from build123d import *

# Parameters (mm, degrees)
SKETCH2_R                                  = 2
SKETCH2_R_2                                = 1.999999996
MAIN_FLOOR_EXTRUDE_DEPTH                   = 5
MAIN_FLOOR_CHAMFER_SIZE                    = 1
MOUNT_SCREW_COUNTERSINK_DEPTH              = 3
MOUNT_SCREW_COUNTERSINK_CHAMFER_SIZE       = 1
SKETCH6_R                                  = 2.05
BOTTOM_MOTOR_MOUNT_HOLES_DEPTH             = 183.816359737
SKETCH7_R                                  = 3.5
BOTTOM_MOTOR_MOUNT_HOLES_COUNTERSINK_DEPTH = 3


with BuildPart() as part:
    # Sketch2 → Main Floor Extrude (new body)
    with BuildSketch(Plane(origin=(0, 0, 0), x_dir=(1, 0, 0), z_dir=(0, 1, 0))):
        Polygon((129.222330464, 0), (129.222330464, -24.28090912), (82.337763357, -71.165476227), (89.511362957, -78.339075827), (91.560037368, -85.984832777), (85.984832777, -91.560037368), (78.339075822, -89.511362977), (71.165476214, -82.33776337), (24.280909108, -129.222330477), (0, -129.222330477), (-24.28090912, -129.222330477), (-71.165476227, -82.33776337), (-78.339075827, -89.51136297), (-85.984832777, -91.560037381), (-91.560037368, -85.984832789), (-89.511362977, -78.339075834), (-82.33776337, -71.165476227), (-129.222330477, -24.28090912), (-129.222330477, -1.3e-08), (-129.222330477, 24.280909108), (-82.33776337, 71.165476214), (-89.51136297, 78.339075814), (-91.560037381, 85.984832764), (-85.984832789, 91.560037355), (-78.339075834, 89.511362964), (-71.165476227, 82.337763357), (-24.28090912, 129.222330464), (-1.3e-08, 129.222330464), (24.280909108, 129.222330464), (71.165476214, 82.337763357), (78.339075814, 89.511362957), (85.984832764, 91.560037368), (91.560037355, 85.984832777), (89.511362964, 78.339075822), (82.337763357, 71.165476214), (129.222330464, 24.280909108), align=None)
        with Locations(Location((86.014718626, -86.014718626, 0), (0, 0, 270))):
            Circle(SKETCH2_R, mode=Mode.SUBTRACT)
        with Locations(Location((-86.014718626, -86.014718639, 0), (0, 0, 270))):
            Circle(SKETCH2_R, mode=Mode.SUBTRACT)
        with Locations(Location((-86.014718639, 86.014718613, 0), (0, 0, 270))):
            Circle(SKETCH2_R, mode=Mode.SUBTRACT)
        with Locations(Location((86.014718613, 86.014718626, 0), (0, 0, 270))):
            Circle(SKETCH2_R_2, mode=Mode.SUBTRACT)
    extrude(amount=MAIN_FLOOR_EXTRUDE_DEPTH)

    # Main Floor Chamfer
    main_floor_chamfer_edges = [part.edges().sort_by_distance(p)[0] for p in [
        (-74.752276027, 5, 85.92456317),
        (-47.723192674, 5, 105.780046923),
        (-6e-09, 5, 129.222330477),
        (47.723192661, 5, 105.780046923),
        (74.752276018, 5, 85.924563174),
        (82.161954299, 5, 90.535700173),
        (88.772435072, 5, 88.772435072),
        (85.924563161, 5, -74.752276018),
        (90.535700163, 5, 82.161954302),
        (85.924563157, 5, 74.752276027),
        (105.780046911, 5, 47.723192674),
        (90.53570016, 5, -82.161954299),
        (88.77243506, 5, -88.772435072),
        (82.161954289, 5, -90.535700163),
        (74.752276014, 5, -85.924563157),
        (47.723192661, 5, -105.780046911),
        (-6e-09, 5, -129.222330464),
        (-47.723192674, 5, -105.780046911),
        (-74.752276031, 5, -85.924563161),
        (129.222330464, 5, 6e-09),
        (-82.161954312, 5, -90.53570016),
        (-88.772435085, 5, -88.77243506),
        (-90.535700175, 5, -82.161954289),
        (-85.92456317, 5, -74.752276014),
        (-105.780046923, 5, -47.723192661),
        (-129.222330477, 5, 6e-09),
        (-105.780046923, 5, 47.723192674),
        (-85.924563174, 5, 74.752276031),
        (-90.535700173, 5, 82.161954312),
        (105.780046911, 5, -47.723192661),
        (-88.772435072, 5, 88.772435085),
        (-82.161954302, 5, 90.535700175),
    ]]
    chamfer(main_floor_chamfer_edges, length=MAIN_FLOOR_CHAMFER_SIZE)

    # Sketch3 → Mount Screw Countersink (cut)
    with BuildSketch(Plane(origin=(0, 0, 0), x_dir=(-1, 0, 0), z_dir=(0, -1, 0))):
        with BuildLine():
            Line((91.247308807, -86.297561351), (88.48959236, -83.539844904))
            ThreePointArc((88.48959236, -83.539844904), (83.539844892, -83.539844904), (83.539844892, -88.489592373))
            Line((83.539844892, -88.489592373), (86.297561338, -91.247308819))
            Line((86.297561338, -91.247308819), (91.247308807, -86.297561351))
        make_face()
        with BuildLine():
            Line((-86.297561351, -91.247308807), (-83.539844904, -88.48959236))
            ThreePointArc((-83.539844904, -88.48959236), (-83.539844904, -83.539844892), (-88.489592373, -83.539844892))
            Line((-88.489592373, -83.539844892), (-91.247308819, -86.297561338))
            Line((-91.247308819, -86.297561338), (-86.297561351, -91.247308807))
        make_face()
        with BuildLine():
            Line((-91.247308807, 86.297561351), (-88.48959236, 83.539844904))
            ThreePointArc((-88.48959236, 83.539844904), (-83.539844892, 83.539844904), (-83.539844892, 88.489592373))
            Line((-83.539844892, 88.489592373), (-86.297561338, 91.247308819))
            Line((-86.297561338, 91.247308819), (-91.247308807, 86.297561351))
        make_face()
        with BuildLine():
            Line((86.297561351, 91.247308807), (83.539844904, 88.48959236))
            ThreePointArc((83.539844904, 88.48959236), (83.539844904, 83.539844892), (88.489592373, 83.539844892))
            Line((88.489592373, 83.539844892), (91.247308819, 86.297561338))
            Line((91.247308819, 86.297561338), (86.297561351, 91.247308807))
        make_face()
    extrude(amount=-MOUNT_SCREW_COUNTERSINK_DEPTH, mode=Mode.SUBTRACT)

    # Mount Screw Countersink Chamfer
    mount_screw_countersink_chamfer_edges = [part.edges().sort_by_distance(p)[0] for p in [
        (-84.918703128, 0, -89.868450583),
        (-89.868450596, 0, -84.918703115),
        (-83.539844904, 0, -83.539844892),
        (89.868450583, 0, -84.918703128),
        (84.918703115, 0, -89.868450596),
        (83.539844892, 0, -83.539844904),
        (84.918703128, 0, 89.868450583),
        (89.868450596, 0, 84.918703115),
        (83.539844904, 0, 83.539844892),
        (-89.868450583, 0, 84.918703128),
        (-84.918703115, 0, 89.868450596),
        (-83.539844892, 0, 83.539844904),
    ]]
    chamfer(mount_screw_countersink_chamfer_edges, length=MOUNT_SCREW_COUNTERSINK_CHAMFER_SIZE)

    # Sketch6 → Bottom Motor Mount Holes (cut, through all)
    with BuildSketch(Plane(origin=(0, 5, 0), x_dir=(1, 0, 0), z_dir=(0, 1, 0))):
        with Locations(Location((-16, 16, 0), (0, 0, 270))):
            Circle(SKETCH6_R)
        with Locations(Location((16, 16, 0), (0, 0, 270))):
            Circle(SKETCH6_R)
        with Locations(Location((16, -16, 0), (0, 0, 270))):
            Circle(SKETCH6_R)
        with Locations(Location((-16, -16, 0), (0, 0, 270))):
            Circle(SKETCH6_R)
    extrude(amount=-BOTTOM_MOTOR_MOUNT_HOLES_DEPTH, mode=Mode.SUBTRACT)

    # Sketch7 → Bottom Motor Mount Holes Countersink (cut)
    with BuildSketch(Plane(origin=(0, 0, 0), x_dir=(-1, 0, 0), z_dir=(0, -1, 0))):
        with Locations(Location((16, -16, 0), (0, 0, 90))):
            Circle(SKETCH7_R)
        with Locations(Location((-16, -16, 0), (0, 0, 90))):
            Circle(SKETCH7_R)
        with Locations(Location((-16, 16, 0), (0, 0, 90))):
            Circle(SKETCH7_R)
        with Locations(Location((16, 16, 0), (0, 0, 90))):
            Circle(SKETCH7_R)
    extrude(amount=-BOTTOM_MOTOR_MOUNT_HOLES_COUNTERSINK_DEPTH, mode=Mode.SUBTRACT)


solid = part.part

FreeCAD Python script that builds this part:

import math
import FreeCAD as App
import Part
import Sketcher
Q = App.Units.Quantity


def edges_at(feature, points):
    """Names of the edges that pass closest to the given points."""
    edges = feature.Shape.Edges
    near = lambda p: min(range(len(edges)), key=lambda i: edges[i].distToShape(Part.Vertex(*p))[0])
    return sorted({f"Edge{near(p) + 1}" for p in points})


def add_polygon(sketch, points):
    """Adds a closed chain of lines whose ends are joined by coincident constraints."""
    first, n = sketch.GeometryCount, len(points)
    for a, b in zip(points, points[1:] + points[:1]):
        sketch.addGeometry(Part.LineSegment(App.Vector(*a, 0), App.Vector(*b, 0)), False)
    for i in range(n):
        sketch.addConstraint(Sketcher.Constraint("Coincident", first + i, 2, first + (i + 1) % n, 1))

doc = App.newDocument("Part")
body = doc.addObject("PartDesign::Body", "Body")

sketch1 = body.newObject("Sketcher::SketchObject", "Sketch")
sketch1.AttachmentSupport = (doc.getObject("XZ_Plane"), [""])
sketch1.MapMode = "FlatFace"
add_polygon(sketch1, [(129.2, 24.3), (129.2, -24.3), (82.3, -71.2), (89.5, -78.3), (91.6, -86), (86, -91.6), (78.3, -89.5), (71.2, -82.3), (24.3, -129.2), (-24.3, -129.2), (-71.2, -82.3), (-78.3, -89.5), (-86, -91.6), (-91.6, -86), (-89.5, -78.3), (-82.3, -71.2), (-129.2, -24.3), (-129.2, 24.3), (-82.3, 71.2), (-89.5, 78.3), (-91.6, 86), (-86, 91.6), (-78.3, 89.5), (-71.2, 82.3), (-24.3, 129.2), (24.3, 129.2), (71.2, 82.3), (78.3, 89.5), (86, 91.6), (91.6, 86), (89.5, 78.3), (82.3, 71.2)])
sketch1.addGeometry(Part.Circle(App.Vector(86, 86, 0), App.Vector(0, 0, 1), 2), False)
sketch1.addGeometry(Part.Circle(App.Vector(-86, 86, 0), App.Vector(0, 0, 1), 2), False)
sketch1.addGeometry(Part.Circle(App.Vector(86, -86, 0), App.Vector(0, 0, 1), 2), False)
sketch1.addGeometry(Part.Circle(App.Vector(-86, -86, 0), App.Vector(0, 0, 1), 2), False)
sketch1.addConstraint([
    Sketcher.Constraint("Vertical", 0),
    Sketcher.Constraint("Horizontal", 8),
    Sketcher.Constraint("Vertical", 16),
    Sketcher.Constraint("Horizontal", 24),
    Sketcher.Constraint("Equal", 32, 33),
    Sketcher.Constraint("Equal", 33, 34),
    Sketcher.Constraint("Equal", 34, 35),
    Sketcher.Constraint("Symmetric", 33, 3, 34, 3, -1, 1),
    Sketcher.Constraint("Symmetric", 32, 3, 35, 3, -1, 1),
    Sketcher.Constraint("Symmetric", 0, 2, 16, 2, -1, 1),
    Sketcher.Constraint("Symmetric", 1, 2, 17, 2, -1, 1),
    Sketcher.Constraint("Symmetric", 2, 2, 18, 2, -1, 1),
    Sketcher.Constraint("Symmetric", 3, 2, 19, 2, -1, 1),
    Sketcher.Constraint("Symmetric", 4, 2, 20, 2, -1, 1),
    Sketcher.Constraint("Symmetric", 5, 2, 21, 2, -1, 1),
    Sketcher.Constraint("Symmetric", 6, 2, 22, 2, -1, 1),
    Sketcher.Constraint("Symmetric", 7, 2, 23, 2, -1, 1),
    Sketcher.Constraint("Symmetric", 9, 2, 25, 2, -1, 1),
    Sketcher.Constraint("Symmetric", 10, 2, 26, 2, -1, 1),
    Sketcher.Constraint("Symmetric", 11, 2, 27, 2, -1, 1),
    Sketcher.Constraint("Symmetric", 12, 2, 28, 2, -1, 1),
    Sketcher.Constraint("Symmetric", 13, 2, 29, 2, -1, 1),
    Sketcher.Constraint("Symmetric", 14, 2, 30, 2, -1, 1),
    Sketcher.Constraint("Symmetric", 32, 3, 33, 3, -2),
    Sketcher.Constraint("Symmetric", 6, 2, 9, 2, -2),
    Sketcher.Constraint("Symmetric", 5, 2, 10, 2, -2),
    Sketcher.Constraint("Symmetric", 4, 2, 11, 2, -2),
    Sketcher.Constraint("Symmetric", 3, 2, 12, 2, -2),
    Sketcher.Constraint("Symmetric", 2, 2, 13, 2, -2),
    Sketcher.Constraint("Symmetric", 1, 2, 14, 2, -2),
    Sketcher.Constraint("Perpendicular", 1, 2),
    Sketcher.Constraint("Perpendicular", 2, 4),
    Sketcher.Constraint("Perpendicular", 4, 6),
    Sketcher.Constraint("Perpendicular", 6, 7),
    Sketcher.Constraint("Perpendicular", 7, 9),
    Sketcher.Constraint("Perpendicular", 9, 10),
    Sketcher.Constraint("Perpendicular", 3, 11),
    Sketcher.Constraint("Perpendicular", 14, 15),
    Sketcher.Constraint("Perpendicular", 23, 25),
    Sketcher.Constraint("Perpendicular", 30, 31),
    Sketcher.Constraint("Equal", 24, 0),
    Sketcher.Constraint("Equal", 3, 5),
    Sketcher.Constraint("Equal", 2, 6),
    Sketcher.Constraint("Equal", 1, 7),
    Sketcher.Constraint("Diameter", 32, 4.0),
    Sketcher.Constraint("Angle", 3, Q("-75 deg")),
    Sketcher.Constraint("Distance", 2, 10.145002),
    Sketcher.Constraint("DistanceX", 8, 2, 8, 1, 48.561818),
    Sketcher.Constraint("Distance", 1, 66.304791),
    Sketcher.Constraint("Distance", 3, 7.91547),
    Sketcher.Constraint("Distance", 4, 7.88453),
    Sketcher.Constraint("DistanceX", -1, 1, 32, 3, 86.014719),
    Sketcher.Constraint("DistanceY", -1, 1, 32, 3, 86.014719),
])
pad1 = body.newObject("PartDesign::Pad", "Pad")
pad1.Profile = sketch1
pad1.Length = 5
pad1.Reversed = True
doc.recompute()

chamfer = body.newObject("PartDesign::Chamfer", "Chamfer")
chamfer.Base = (pad1, edges_at(pad1, [
    (-74.752, 5, 85.925),
    (-47.723, 5, 105.78),
    (0, 5, 129.222),
    (47.723, 5, 105.78),
    (74.752, 5, 85.925),
    (82.162, 5, 90.536),
    (88.772, 5, 88.772),
    (85.925, 5, -74.752),
    (90.536, 5, 82.162),
    (85.925, 5, 74.752),
    (105.78, 5, 47.723),
    (90.536, 5, -82.162),
    (88.772, 5, -88.772),
    (82.162, 5, -90.536),
    (74.752, 5, -85.925),
    (47.723, 5, -105.78),
    (0, 5, -129.222),
    (-47.723, 5, -105.78),
    (-74.752, 5, -85.925),
    (129.222, 5, 0),
    (-82.162, 5, -90.536),
    (-88.772, 5, -88.772),
    (-90.536, 5, -82.162),
    (-85.925, 5, -74.752),
    (-105.78, 5, -47.723),
    (-129.222, 5, 0),
    (-105.78, 5, 47.723),
    (-85.925, 5, 74.752),
    (-90.536, 5, 82.162),
    (105.78, 5, -47.723),
    (-88.772, 5, 88.772),
    (-82.162, 5, 90.536),
]))
chamfer.Size = 1

sketch2 = body.newObject("Sketcher::SketchObject", "Sketch001")
sketch2.AttachmentSupport = (doc.getObject("XZ_Plane"), [""])
sketch2.MapMode = "FlatFace"
sketch2.addGeometry([
    Part.LineSegment(App.Vector(-91.2, 86.3, 0), App.Vector(-88.5, 83.5, 0)),
    Part.ArcOfCircle(Part.Circle(App.Vector(-86, 86, 0), App.Vector(0, 0, 1), 3.5), math.radians(-135), math.radians(45)),
    Part.LineSegment(App.Vector(-83.5, 88.5, 0), App.Vector(-86.3, 91.2, 0)),
    Part.LineSegment(App.Vector(-86.3, 91.2, 0), App.Vector(-91.2, 86.3, 0)),
    Part.LineSegment(App.Vector(86.3, 91.2, 0), App.Vector(83.5, 88.5, 0)),
    Part.ArcOfCircle(Part.Circle(App.Vector(86, 86, 0), App.Vector(0, 0, 1), 3.5), math.radians(135), math.radians(315)),
    Part.LineSegment(App.Vector(88.5, 83.5, 0), App.Vector(91.2, 86.3, 0)),
    Part.LineSegment(App.Vector(91.2, 86.3, 0), App.Vector(86.3, 91.2, 0)),
    Part.LineSegment(App.Vector(91.2, -86.3, 0), App.Vector(88.5, -83.5, 0)),
    Part.ArcOfCircle(Part.Circle(App.Vector(86, -86, 0), App.Vector(0, 0, 1), 3.5), math.radians(45), math.radians(225)),
    Part.LineSegment(App.Vector(83.5, -88.5, 0), App.Vector(86.3, -91.2, 0)),
    Part.LineSegment(App.Vector(86.3, -91.2, 0), App.Vector(91.2, -86.3, 0)),
    Part.LineSegment(App.Vector(-86.3, -91.2, 0), App.Vector(-83.5, -88.5, 0)),
    Part.ArcOfCircle(Part.Circle(App.Vector(-86, -86, 0), App.Vector(0, 0, 1), 3.5), math.radians(-45), math.radians(135)),
    Part.LineSegment(App.Vector(-88.5, -83.5, 0), App.Vector(-91.2, -86.3, 0)),
    Part.LineSegment(App.Vector(-91.2, -86.3, 0), App.Vector(-86.3, -91.2, 0)),
], False)
sketch2.addConstraint([
    Sketcher.Constraint("Tangent", 0, 2, 1, 1),
    Sketcher.Constraint("Tangent", 1, 2, 2, 1),
    Sketcher.Constraint("Coincident", 2, 2, 3, 1),
    Sketcher.Constraint("Coincident", 3, 2, 0, 1),
    Sketcher.Constraint("Tangent", 4, 2, 5, 1),
    Sketcher.Constraint("Tangent", 5, 2, 6, 1),
    Sketcher.Constraint("Coincident", 6, 2, 7, 1),
    Sketcher.Constraint("Coincident", 7, 2, 4, 1),
    Sketcher.Constraint("Tangent", 8, 2, 9, 1),
    Sketcher.Constraint("Tangent", 9, 2, 10, 1),
    Sketcher.Constraint("Coincident", 10, 2, 11, 1),
    Sketcher.Constraint("Coincident", 11, 2, 8, 1),
    Sketcher.Constraint("Tangent", 12, 2, 13, 1),
    Sketcher.Constraint("Tangent", 13, 2, 14, 1),
    Sketcher.Constraint("Coincident", 14, 2, 15, 1),
    Sketcher.Constraint("Coincident", 15, 2, 12, 1),
    Sketcher.Constraint("Equal", 1, 5),
    Sketcher.Constraint("Equal", 5, 9),
    Sketcher.Constraint("Equal", 9, 13),
    Sketcher.Constraint("Symmetric", 1, 3, 9, 3, -1, 1),
    Sketcher.Constraint("Symmetric", 5, 3, 13, 3, -1, 1),
    Sketcher.Constraint("Symmetric", 2, 2, 10, 2, -1, 1),
    Sketcher.Constraint("Symmetric", 3, 2, 11, 2, -1, 1),
    Sketcher.Constraint("Symmetric", 6, 2, 14, 2, -1, 1),
    Sketcher.Constraint("Symmetric", 7, 2, 15, 2, -1, 1),
    Sketcher.Constraint("Symmetric", 1, 3, 5, 3, -2),
    Sketcher.Constraint("Symmetric", 3, 2, 6, 2, -2),
    Sketcher.Constraint("Symmetric", 2, 2, 7, 2, -2),
    Sketcher.Constraint("Parallel", 0, 2),
    Sketcher.Constraint("Perpendicular", 2, 3),
    Sketcher.Constraint("Parallel", 3, 4),
    Sketcher.Constraint("Radius", 1, 3.5),
    Sketcher.Constraint("Distance", 0, 3.9),
    Sketcher.Constraint("DistanceX", 1, 3, -1, 1, 86.014719),
    Sketcher.Constraint("DistanceY", -1, 1, 1, 3, 86.014719),
])
pocket1 = body.newObject("PartDesign::Pocket", "Pocket")
pocket1.Profile = sketch2
pocket1.Length = 3
doc.recompute()

chamfer2 = body.newObject("PartDesign::Chamfer", "Chamfer001")
chamfer2.Base = (pocket1, edges_at(pocket1, [
    (-84.919, 0, -89.868),
    (-89.868, 0, -84.919),
    (-83.54, 0, -83.54),
    (89.868, 0, -84.919),
    (84.919, 0, -89.868),
    (83.54, 0, -83.54),
    (84.919, 0, 89.868),
    (89.868, 0, 84.919),
    (83.54, 0, 83.54),
    (-89.868, 0, 84.919),
    (-84.919, 0, 89.868),
    (-83.54, 0, 83.54),
]))
chamfer2.Size = 1

sketch3 = body.newObject("Sketcher::SketchObject", "Sketch002")
sketch3.AttachmentSupport = (doc.getObject("XZ_Plane"), [""])
sketch3.MapMode = "FlatFace"
sketch3.AttachmentOffset = App.Placement(App.Vector(0, 0, -5), App.Rotation())
sketch3.addGeometry([
    Part.Circle(App.Vector(-16, -16, 0), App.Vector(0, 0, 1), 2),
    Part.Circle(App.Vector(16, -16, 0), App.Vector(0, 0, 1), 2),
    Part.Circle(App.Vector(16, 16, 0), App.Vector(0, 0, 1), 2),
    Part.Circle(App.Vector(-16, 16, 0), App.Vector(0, 0, 1), 2),
], False)
sketch3.addConstraint([
    Sketcher.Constraint("Equal", 0, 1),
    Sketcher.Constraint("Equal", 1, 2),
    Sketcher.Constraint("Equal", 2, 3),
    Sketcher.Constraint("Symmetric", 0, 3, 2, 3, -1, 1),
    Sketcher.Constraint("Symmetric", 1, 3, 3, 3, -1, 1),
    Sketcher.Constraint("Symmetric", 0, 3, 1, 3, -2),
    Sketcher.Constraint("Diameter", 0, 4.1),
    Sketcher.Constraint("DistanceX", 0, 3, -1, 1, 16.0),
    Sketcher.Constraint("DistanceY", 0, 3, -1, 1, 16.0),
])
pocket2 = body.newObject("PartDesign::Pocket", "Pocket001")
pocket2.Profile = sketch3
pocket2.Type = "ThroughAll"
pocket2.Reversed = True

sketch4 = body.newObject("Sketcher::SketchObject", "Sketch003")
sketch4.AttachmentSupport = (doc.getObject("XZ_Plane"), [""])
sketch4.MapMode = "FlatFace"
sketch4.addGeometry([
    Part.Circle(App.Vector(-16, 16, 0), App.Vector(0, 0, 1), 3.5),
    Part.Circle(App.Vector(16, 16, 0), App.Vector(0, 0, 1), 3.5),
    Part.Circle(App.Vector(16, -16, 0), App.Vector(0, 0, 1), 3.5),
    Part.Circle(App.Vector(-16, -16, 0), App.Vector(0, 0, 1), 3.5),
], False)
sketch4.addConstraint([
    Sketcher.Constraint("Equal", 0, 1),
    Sketcher.Constraint("Equal", 1, 2),
    Sketcher.Constraint("Equal", 2, 3),
    Sketcher.Constraint("Symmetric", 0, 3, 2, 3, -1, 1),
    Sketcher.Constraint("Symmetric", 1, 3, 3, 3, -1, 1),
    Sketcher.Constraint("Symmetric", 0, 3, 1, 3, -2),
    Sketcher.Constraint("Diameter", 0, 7.0),
    Sketcher.Constraint("DistanceX", 0, 3, -1, 1, 16.0),
    Sketcher.Constraint("DistanceY", -1, 1, 0, 3, 16.0),
])
pocket3 = body.newObject("PartDesign::Pocket", "Pocket002")
pocket3.Profile = sketch4
pocket3.Length = 3

doc.recompute()
